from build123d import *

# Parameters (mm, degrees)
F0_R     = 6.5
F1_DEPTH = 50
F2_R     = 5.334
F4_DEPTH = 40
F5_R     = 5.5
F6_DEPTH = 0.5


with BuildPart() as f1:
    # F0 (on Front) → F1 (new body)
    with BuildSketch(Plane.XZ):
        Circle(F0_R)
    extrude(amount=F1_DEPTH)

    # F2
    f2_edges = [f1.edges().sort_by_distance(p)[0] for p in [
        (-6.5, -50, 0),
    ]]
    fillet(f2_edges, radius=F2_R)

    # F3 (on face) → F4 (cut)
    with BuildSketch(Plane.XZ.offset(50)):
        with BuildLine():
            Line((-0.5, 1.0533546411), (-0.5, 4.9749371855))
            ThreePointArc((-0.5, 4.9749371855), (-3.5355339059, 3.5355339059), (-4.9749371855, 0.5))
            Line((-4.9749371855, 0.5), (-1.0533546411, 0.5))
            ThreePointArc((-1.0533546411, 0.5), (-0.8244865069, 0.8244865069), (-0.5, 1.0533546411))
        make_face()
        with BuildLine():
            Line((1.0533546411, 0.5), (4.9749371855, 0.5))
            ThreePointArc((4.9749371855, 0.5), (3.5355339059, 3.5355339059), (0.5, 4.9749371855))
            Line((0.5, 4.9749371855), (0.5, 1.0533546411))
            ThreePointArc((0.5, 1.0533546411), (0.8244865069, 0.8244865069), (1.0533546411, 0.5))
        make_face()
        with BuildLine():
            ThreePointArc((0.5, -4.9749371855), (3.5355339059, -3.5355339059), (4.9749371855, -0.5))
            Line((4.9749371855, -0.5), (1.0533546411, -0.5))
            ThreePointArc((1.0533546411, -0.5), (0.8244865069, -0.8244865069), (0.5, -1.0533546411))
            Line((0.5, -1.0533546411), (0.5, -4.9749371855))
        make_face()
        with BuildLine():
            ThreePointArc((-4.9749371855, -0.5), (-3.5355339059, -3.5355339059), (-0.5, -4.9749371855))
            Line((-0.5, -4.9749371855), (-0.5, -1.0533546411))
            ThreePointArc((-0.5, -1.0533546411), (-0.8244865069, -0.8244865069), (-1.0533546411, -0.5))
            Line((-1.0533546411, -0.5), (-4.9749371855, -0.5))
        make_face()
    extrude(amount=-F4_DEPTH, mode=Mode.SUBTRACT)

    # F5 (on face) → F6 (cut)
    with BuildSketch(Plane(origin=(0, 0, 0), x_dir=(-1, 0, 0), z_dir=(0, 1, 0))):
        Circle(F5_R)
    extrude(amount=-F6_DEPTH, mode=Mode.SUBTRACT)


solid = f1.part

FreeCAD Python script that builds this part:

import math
import FreeCAD as App
import Part
import Sketcher

V = App.Vector


def edges_at(feature, points):
    """Names of the edges that pass closest to the given points."""
    edges = feature.Shape.Edges
    near = lambda p: min(range(len(edges)), key=lambda i: edges[i].distToShape(Part.Vertex(*p))[0])
    return sorted({f"Edge{near(p) + 1}" for p in points})

doc = App.newDocument("Part")
body = doc.addObject("PartDesign::Body", "Body")

# Sketch on XZ plane
sketch1 = doc.addObject("Sketcher::SketchObject", "Sketch")
body.addObject(sketch1)
sketch1.AttachmentSupport = (doc.XZ_Plane, [""])
sketch1.MapMode = "FlatFace"
sketch1.addGeometry(Part.Circle(V(0, 0, 0), V(0, 0, 1), 6), False)
sketch1.addConstraint(Sketcher.Constraint("Coincident", 0, 3, -1, 1))
sketch1.addConstraint(Sketcher.Constraint("Diameter", 0, 13.0))
pad1 = doc.addObject("PartDesign::Pad", "Pad")
body.addObject(pad1)
pad1.Profile = sketch1
pad1.Length = 50
doc.recompute()

fillet = doc.addObject("PartDesign::Fillet", "Fillet")
body.addObject(fillet)
fillet.Base = (pad1, edges_at(pad1, [(-6.5, -50, 0)]))
fillet.Radius = 5.334

# Sketch on XZ plane
sketch2 = doc.addObject("Sketcher::SketchObject", "Sketch001")
body.addObject(sketch2)
sketch2.AttachmentSupport = (doc.XZ_Plane, [""])
sketch2.MapMode = "FlatFace"
sketch2.AttachmentOffset = App.Placement(V(0, 0, 50), App.Rotation())
sketch2.addGeometry(Part.LineSegment(V(-0.5, 1.1, 0), V(-0.5, 5, 0)), False)
sketch2.addGeometry(Part.ArcOfCircle(Part.Circle(V(0, 0, 0), V(0, 0, 1), 5), math.radians(96), math.radians(174)), False)
sketch2.addGeometry(Part.LineSegment(V(-5, 0.5, 0), V(-1.1, 0.5, 0)), False)
sketch2.addGeometry(Part.ArcOfCircle(Part.Circle(V(0, 0, 0), V(0, 0, 1), 1.2), math.radians(115), math.radians(155)), False)
sketch2.addGeometry(Part.LineSegment(V(1.1, 0.5, 0), V(5, 0.5, 0)), False)
sketch2.addGeometry(Part.ArcOfCircle(Part.Circle(V(0, 0, 0), V(0, 0, 1), 5), math.radians(6), math.radians(84)), False)
sketch2.addGeometry(Part.LineSegment(V(0.5, 5, 0), V(0.5, 1.1, 0)), False)
sketch2.addGeometry(Part.ArcOfCircle(Part.Circle(V(0, 0, 0), V(0, 0, 1), 1.2), math.radians(25), math.radians(65)), False)
sketch2.addGeometry(Part.ArcOfCircle(Part.Circle(V(0, 0, 0), V(0, 0, 1), 5), math.radians(-84), math.radians(-6)), False)
sketch2.addGeometry(Part.LineSegment(V(5, -0.5, 0), V(1.1, -0.5, 0)), False)
sketch2.addGeometry(Part.ArcOfCircle(Part.Circle(V(0, 0, 0), V(0, 0, 1), 1.2), math.radians(-65), math.radians(-25)), False)
sketch2.addGeometry(Part.LineSegment(V(0.5, -1.1, 0), V(0.5, -5, 0)), False)
sketch2.addGeometry(Part.ArcOfCircle(Part.Circle(V(0, 0, 0), V(0, 0, 1), 5), math.radians(-174), math.radians(-96)), False)
sketch2.addGeometry(Part.LineSegment(V(-0.5, -5, 0), V(-0.5, -1.1, 0)), False)
sketch2.addGeometry(Part.ArcOfCircle(Part.Circle(V(0, 0, 0), V(0, 0, 1), 1.2), math.radians(-155), math.radians(-115)), False)
sketch2.addGeometry(Part.LineSegment(V(-1.1, -0.5, 0), V(-5, -0.5, 0)), False)
sketch2.addConstraint(Sketcher.Constraint("Coincident", 0, 2, 1, 1))
sketch2.addConstraint(Sketcher.Constraint("Coincident", 1, 2, 2, 1))
sketch2.addConstraint(Sketcher.Constraint("Coincident", 2, 2, 3, 2))
sketch2.addConstraint(Sketcher.Constraint("Coincident", 3, 1, 0, 1))
sketch2.addConstraint(Sketcher.Constraint("Coincident", 4, 2, 5, 1))
sketch2.addConstraint(Sketcher.Constraint("Coincident", 5, 2, 6, 1))
sketch2.addConstraint(Sketcher.Constraint("Coincident", 6, 2, 7, 2))
sketch2.addConstraint(Sketcher.Constraint("Coincident", 7, 1, 4, 1))
sketch2.addConstraint(Sketcher.Constraint("Coincident", 8, 2, 9, 1))
sketch2.addConstraint(Sketcher.Constraint("Coincident", 9, 2, 10, 2))
sketch2.addConstraint(Sketcher.Constraint("Coincident", 10, 1, 11, 1))
sketch2.addConstraint(Sketcher.Constraint("Coincident", 11, 2, 8, 1))
sketch2.addConstraint(Sketcher.Constraint("Coincident", 12, 2, 13, 1))
sketch2.addConstraint(Sketcher.Constraint("Coincident", 13, 2, 14, 2))
sketch2.addConstraint(Sketcher.Constraint("Coincident", 14, 1, 15, 1))
sketch2.addConstraint(Sketcher.Constraint("Coincident", 15, 2, 12, 1))
sketch2.addConstraint(Sketcher.Constraint("Vertical", 0))
sketch2.addConstraint(Sketcher.Constraint("Horizontal", 2))
sketch2.addConstraint(Sketcher.Constraint("Horizontal", 4))
sketch2.addConstraint(Sketcher.Constraint("Vertical", 6))
sketch2.addConstraint(Sketcher.Constraint("Horizontal", 9))
sketch2.addConstraint(Sketcher.Constraint("Vertical", 11))
sketch2.addConstraint(Sketcher.Constraint("Vertical", 13))
sketch2.addConstraint(Sketcher.Constraint("Horizontal", 15))
sketch2.addConstraint(Sketcher.Constraint("Coincident", 1, 3, -1, 1))
sketch2.addConstraint(Sketcher.Constraint("Coincident", 3, 3, -1, 1))
sketch2.addConstraint(Sketcher.Constraint("Coincident", 5, 3, -1, 1))
sketch2.addConstraint(Sketcher.Constraint("Coincident", 7, 3, -1, 1))
sketch2.addConstraint(Sketcher.Constraint("Coincident", 8, 3, -1, 1))
sketch2.addConstraint(Sketcher.Constraint("Coincident", 10, 3, -1, 1))
sketch2.addConstraint(Sketcher.Constraint("Coincident", 12, 3, -1, 1))
sketch2.addConstraint(Sketcher.Constraint("Coincident", 14, 3, -1, 1))
sketch2.addConstraint(Sketcher.Constraint("Equal", 1, 5))
sketch2.addConstraint(Sketcher.Constraint("Equal", 3, 7))
sketch2.addConstraint(Sketcher.Constraint("Equal", 5, 8))
sketch2.addConstraint(Sketcher.Constraint("Equal", 7, 10))
sketch2.addConstraint(Sketcher.Constraint("Equal", 8, 12))
sketch2.addConstraint(Sketcher.Constraint("Equal", 10, 14))
sketch2.addConstraint(Sketcher.Constraint("Horizontal", 2, 2, 4, 2))
sketch2.addConstraint(Sketcher.Constraint("Horizontal", 0, 2, 5, 2))
sketch2.addConstraint(Sketcher.Constraint("Horizontal", 11, 2, 12, 2))
sketch2.addConstraint(Sketcher.Constraint("Horizontal", 9, 2, 14, 1))
sketch2.addConstraint(Sketcher.Constraint("Vertical", 4, 2, 8, 2))
sketch2.addConstraint(Sketcher.Constraint("Vertical", 6, 2, 10, 1))
sketch2.addConstraint(Sketcher.Constraint("Equal", 15, 0))
sketch2.addConstraint(Sketcher.Constraint("Radius", 1, 5.0))
sketch2.addConstraint(Sketcher.Constraint("Radius", 3, 1.166))
sketch2.addConstraint(Sketcher.Constraint("DistanceX", 0, 2, 5, 2, 1.0))
pocket1 = doc.addObject("PartDesign::Pocket", "Pocket")
body.addObject(pocket1)
pocket1.Profile = sketch2
pocket1.Length = 40

# Sketch on XZ plane
sketch3 = doc.addObject("Sketcher::SketchObject", "Sketch002")
body.addObject(sketch3)
sketch3.AttachmentSupport = (doc.XZ_Plane, [""])
sketch3.MapMode = "FlatFace"
sketch3.addGeometry(Part.Circle(V(0, 0, 0), V(0, 0, 1), 6), False)
sketch3.addConstraint(Sketcher.Constraint("Coincident", 0, 3, -1, 1))
sketch3.addConstraint(Sketcher.Constraint("Diameter", 0, 11.0))
pocket2 = doc.addObject("PartDesign::Pocket", "Pocket001")
body.addObject(pocket2)
pocket2.Profile = sketch3
pocket2.Length = 0.5
pocket2.Reversed = True

doc.recompute()
